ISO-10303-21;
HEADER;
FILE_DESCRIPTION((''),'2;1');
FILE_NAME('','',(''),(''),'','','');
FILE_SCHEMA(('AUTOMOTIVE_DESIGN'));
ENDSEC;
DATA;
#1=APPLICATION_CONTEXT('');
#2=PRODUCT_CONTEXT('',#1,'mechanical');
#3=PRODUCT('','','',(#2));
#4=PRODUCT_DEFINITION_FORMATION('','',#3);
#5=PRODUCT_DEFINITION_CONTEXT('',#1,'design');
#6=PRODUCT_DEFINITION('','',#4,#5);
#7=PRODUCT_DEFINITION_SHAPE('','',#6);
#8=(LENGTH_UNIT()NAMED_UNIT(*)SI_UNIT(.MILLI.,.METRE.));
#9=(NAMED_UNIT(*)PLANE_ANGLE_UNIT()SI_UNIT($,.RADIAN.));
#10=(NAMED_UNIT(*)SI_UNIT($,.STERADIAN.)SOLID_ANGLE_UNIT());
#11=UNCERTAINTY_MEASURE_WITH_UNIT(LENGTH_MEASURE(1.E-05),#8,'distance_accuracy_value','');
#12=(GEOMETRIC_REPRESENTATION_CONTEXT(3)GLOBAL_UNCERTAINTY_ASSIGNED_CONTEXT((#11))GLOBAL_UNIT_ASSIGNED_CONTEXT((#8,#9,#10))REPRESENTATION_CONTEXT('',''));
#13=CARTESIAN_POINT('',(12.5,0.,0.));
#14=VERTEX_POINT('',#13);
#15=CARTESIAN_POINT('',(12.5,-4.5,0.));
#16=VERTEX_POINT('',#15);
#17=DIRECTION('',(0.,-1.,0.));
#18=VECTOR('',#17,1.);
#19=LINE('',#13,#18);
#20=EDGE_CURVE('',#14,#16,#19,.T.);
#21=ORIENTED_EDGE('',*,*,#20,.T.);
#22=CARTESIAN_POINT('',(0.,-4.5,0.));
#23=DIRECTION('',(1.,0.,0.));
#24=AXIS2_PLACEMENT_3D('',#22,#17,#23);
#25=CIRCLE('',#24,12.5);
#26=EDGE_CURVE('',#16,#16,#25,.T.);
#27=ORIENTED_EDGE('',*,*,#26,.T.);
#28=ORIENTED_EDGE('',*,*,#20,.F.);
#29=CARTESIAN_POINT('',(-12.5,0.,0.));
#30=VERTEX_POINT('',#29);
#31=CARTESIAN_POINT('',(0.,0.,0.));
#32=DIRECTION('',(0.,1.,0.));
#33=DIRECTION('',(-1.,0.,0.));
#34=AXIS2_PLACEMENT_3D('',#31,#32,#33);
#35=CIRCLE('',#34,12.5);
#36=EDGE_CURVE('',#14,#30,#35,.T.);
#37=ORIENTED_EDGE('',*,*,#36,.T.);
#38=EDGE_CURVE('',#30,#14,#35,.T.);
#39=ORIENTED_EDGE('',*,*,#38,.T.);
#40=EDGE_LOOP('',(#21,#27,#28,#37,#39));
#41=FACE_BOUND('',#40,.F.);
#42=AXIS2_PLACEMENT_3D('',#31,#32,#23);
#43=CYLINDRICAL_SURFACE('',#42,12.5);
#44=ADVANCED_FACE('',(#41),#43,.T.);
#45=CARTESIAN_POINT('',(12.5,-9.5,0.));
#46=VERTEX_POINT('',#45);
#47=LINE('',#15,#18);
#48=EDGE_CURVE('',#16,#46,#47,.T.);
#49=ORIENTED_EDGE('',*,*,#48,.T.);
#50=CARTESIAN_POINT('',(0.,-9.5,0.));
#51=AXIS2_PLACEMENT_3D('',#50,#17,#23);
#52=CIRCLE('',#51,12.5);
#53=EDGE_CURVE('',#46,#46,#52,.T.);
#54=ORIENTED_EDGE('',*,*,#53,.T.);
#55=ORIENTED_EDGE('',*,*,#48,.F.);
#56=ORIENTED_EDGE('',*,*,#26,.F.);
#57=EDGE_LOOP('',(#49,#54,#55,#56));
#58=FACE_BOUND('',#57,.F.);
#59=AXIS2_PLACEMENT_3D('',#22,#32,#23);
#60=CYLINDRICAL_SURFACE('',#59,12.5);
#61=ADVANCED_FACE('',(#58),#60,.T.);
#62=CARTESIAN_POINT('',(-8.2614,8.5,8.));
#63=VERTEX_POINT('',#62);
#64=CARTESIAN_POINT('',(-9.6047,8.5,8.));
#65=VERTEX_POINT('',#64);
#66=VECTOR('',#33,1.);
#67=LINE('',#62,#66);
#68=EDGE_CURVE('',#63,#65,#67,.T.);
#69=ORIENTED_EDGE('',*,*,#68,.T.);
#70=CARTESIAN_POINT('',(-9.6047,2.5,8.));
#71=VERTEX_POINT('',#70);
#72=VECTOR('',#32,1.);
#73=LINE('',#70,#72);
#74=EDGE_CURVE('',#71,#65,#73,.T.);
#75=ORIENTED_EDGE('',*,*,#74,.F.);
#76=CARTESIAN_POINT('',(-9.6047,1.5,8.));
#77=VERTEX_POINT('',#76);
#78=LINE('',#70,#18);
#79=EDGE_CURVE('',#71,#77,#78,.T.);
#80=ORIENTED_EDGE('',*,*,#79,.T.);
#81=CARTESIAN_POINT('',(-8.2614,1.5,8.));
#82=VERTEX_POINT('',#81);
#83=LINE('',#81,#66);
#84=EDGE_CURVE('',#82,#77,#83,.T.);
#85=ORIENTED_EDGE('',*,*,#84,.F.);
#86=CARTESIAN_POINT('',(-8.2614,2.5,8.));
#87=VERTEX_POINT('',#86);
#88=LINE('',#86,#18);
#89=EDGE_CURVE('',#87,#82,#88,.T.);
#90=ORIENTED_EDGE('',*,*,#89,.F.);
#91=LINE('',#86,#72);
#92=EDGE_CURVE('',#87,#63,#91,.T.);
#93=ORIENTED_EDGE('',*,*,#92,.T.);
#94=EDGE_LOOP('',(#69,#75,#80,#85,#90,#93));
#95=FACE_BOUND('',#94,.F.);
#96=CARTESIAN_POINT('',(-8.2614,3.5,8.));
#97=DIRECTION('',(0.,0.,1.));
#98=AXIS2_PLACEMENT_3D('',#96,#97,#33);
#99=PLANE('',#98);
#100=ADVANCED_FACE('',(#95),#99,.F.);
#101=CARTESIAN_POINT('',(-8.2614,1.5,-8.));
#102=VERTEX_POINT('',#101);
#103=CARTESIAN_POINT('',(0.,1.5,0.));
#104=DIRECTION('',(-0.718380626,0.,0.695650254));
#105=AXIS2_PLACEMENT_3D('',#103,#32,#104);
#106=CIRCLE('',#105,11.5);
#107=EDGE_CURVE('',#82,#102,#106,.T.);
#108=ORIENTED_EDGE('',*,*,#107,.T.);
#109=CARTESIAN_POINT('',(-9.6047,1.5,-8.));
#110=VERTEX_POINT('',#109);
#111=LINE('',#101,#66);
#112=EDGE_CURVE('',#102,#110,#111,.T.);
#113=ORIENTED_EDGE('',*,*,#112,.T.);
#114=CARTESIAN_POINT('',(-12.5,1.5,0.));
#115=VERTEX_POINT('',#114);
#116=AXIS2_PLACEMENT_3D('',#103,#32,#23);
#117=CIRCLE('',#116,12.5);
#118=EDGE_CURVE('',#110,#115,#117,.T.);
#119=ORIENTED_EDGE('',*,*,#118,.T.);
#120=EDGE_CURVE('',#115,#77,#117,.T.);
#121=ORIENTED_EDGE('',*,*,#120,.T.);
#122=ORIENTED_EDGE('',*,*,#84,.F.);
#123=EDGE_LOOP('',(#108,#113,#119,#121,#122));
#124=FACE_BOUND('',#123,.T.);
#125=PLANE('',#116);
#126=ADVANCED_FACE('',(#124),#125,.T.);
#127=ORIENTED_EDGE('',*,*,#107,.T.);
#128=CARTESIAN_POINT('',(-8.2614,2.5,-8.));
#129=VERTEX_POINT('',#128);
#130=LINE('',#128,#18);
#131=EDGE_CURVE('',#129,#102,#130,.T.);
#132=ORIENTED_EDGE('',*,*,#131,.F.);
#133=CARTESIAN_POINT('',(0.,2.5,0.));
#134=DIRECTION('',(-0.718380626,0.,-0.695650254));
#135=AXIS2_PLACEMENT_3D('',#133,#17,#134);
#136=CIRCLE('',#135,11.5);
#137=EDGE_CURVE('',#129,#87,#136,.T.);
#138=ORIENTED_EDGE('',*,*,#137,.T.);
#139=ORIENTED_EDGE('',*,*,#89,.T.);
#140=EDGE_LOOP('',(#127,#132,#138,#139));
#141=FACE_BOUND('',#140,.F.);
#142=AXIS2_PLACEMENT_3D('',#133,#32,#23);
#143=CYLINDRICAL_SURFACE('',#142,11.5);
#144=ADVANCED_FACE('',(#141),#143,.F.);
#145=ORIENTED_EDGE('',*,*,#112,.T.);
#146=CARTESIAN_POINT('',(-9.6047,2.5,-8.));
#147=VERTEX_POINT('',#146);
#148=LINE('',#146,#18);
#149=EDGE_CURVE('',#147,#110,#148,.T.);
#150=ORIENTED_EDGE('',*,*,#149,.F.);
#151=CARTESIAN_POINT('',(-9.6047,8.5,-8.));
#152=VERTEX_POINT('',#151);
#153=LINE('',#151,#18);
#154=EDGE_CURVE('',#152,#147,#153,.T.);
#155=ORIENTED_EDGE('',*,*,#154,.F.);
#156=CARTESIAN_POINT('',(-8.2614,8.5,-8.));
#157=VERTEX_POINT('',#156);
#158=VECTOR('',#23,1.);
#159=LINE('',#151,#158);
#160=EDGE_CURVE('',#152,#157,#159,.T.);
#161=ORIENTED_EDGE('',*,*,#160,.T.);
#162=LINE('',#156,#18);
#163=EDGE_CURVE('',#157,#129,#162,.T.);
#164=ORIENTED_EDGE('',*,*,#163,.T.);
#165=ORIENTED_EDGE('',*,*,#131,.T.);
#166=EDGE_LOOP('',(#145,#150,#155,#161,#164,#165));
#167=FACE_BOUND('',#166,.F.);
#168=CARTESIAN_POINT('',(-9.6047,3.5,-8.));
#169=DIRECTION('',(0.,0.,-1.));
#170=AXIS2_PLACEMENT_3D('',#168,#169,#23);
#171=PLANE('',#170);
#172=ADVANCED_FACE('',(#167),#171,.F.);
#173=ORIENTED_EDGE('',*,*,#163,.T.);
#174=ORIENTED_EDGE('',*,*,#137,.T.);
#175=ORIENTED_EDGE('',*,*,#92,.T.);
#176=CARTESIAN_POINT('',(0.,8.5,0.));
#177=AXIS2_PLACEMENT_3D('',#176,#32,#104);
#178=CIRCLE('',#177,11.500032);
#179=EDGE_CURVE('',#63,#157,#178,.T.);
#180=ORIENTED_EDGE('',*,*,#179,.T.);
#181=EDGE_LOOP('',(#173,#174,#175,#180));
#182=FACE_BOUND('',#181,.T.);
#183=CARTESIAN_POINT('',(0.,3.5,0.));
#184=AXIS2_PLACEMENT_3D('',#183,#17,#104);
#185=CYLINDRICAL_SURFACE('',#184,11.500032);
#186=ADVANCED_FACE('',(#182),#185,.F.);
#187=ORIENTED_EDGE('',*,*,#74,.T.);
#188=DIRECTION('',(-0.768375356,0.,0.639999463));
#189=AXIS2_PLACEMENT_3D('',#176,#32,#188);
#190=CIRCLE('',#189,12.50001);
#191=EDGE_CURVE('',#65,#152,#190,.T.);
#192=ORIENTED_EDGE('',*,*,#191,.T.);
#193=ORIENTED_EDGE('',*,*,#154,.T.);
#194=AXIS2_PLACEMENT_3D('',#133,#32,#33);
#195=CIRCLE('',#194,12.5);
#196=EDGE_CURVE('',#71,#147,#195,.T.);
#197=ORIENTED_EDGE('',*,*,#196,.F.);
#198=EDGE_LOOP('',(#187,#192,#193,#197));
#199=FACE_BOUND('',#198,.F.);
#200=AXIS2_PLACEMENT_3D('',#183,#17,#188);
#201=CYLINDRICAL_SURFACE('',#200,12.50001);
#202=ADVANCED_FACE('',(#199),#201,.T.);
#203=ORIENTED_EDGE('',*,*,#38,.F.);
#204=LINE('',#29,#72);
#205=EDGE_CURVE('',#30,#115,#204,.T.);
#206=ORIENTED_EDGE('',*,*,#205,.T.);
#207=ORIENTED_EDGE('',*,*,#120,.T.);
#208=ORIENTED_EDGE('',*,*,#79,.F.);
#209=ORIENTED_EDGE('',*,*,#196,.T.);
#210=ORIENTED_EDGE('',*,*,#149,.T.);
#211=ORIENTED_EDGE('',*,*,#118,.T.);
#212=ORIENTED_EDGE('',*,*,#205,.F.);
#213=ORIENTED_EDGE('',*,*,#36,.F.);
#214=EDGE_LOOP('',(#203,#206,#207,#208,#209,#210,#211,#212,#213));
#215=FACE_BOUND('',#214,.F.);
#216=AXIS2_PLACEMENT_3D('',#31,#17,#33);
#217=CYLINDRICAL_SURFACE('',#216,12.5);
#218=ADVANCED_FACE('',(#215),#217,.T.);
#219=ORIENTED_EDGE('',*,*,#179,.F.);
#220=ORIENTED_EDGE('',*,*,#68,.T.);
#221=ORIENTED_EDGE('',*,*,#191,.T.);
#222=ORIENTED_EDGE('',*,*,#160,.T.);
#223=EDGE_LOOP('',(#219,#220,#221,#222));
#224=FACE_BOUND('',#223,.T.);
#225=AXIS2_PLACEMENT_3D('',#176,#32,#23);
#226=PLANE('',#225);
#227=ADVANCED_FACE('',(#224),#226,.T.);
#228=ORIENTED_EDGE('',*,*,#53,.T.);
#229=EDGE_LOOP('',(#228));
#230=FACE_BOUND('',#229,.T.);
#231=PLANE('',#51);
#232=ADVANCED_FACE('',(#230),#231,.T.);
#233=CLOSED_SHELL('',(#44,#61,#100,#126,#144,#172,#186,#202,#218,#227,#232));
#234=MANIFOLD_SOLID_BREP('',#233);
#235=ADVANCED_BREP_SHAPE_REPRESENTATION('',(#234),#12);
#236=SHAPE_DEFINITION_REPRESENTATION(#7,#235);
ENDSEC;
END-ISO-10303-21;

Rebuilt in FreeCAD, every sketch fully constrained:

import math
import FreeCAD as App
import Part
import Sketcher
from FreeCAD import Vector

doc = App.newDocument("Part")
params = doc.addObject("Spreadsheet::Sheet", "Params")
for row, (alias, value) in enumerate([
    ("sketch1_diameter", "25 mm"),
    ("pad1_length", "2.5 mm"),
    ("sketch2_diameter", "23 mm"),
    ("pocket1_length", "1 mm"),
    ("sketch3_radius", "11.5 mm"),
    ("sketch3_radius2", "12.5 mm"),
    ("pocket2_length", "1 mm"),
    ("sketch4_radius", "12.5 mm"),
    ("sketch4_radius2", "11.5 mm"),
    ("pad2_length", "1 mm"),
    ("sketch5_radius", "11.5 mm"),
    ("sketch5_radius2", "12.5 mm"),
    ("pad3_length", "5 mm"),
    ("sketch6_diameter", "25 mm"),
    ("pad4_length", "4.5 mm"),
    ("sketch7_diameter", "25 mm"),
    ("pad5_length", "5 mm"),
], start=1):
    params.set(f"A{row}", alias)
    params.set(f"B{row}", "=" + value)
    params.setAlias(f"B{row}", alias)

body = doc.addObject("PartDesign::Body", "Body")

sketch1 = doc.addObject("Sketcher::SketchObject", "Sketch")
body.addObject(sketch1)
sketch1.AttachmentSupport = (doc.XZ_Plane, [""])
sketch1.MapMode = "FlatFace"
sketch1.addGeometry(Part.Circle(Vector(0, 0, 0), Vector(0, 0, 1), 12.5), False)
sketch1.addConstraint([
    Sketcher.Constraint("Coincident", 0, 3, -1, 1),
    Sketcher.Constraint("Diameter", 0, 25.0),
])
sketch1.setExpression("Constraints[1]", "Params.sketch1_diameter")
pad1 = doc.addObject("PartDesign::Pad", "Pad")
body.addObject(pad1)
pad1.Profile = sketch1
pad1.setExpression("Length", "Params.pad1_length")
pad1.Reversed = True

sketch2 = doc.addObject("Sketcher::SketchObject", "Sketch001")
body.addObject(sketch2)
sketch2.AttachmentSupport = (doc.XZ_Plane, [""])
sketch2.MapMode = "FlatFace"
sketch2.AttachmentOffset = App.Placement(Vector(0, 0, -2.5), App.Rotation())
sketch2.addGeometry(Part.Circle(Vector(0, 0, 0), Vector(0, 0, 1), 11.5), False)
sketch2.addConstraint([
    Sketcher.Constraint("Coincident", 0, 3, -1, 1),
    Sketcher.Constraint("Diameter", 0, 23.0),
])
sketch2.setExpression("Constraints[1]", "Params.sketch2_diameter")
pocket1 = doc.addObject("PartDesign::Pocket", "Pocket")
body.addObject(pocket1)
pocket1.Profile = sketch2
pocket1.setExpression("Length", "Params.pocket1_length")
pocket1.Reversed = True

sketch3 = doc.addObject("Sketcher::SketchObject", "Sketch002")
body.addObject(sketch3)
sketch3.AttachmentSupport = (doc.XZ_Plane, [""])
sketch3.MapMode = "FlatFace"
sketch3.AttachmentOffset = App.Placement(Vector(0, 0, -2.5), App.Rotation())
sketch3.addGeometry([
    Part.ArcOfCircle(Part.Circle(Vector(0, 0, 0), Vector(0, 0, 1), 11.5), math.radians(135.920943), math.radians(224.079057)),
    Part.LineSegment(Vector(-8.2614, -8, 0), Vector(-9.6047, -8, 0)),
    Part.ArcOfCircle(Part.Circle(Vector(0, 0, 0), Vector(0, 0, 1), 12.5), math.radians(140.208221), math.radians(219.791779)),
    Part.LineSegment(Vector(-9.6047, 8, 0), Vector(-8.2614, 8, 0)),
], False)
sketch3.addConstraint([
    Sketcher.Constraint("Coincident", 0, 2, 1, 1),
    Sketcher.Constraint("Coincident", 1, 2, 2, 2),
    Sketcher.Constraint("Coincident", 2, 1, 3, 1),
    Sketcher.Constraint("Coincident", 3, 2, 0, 1),
    Sketcher.Constraint("Horizontal", 1),
    Sketcher.Constraint("Horizontal", 3),
    Sketcher.Constraint("Coincident", 0, 3, -1, 1),
    Sketcher.Constraint("Coincident", 2, 3, -1, 1),
    Sketcher.Constraint("Vertical", 1, 2, 2, 1),
    Sketcher.Constraint("Radius", 0, 11.5),
    Sketcher.Constraint("Radius", 2, 12.5),
    Sketcher.Constraint("DistanceY", 0, 2, -1, 1, 8.0),
])
sketch3.setExpression("Constraints[9]", "Params.sketch3_radius")
sketch3.setExpression("Constraints[10]", "Params.sketch3_radius2")
pocket2 = doc.addObject("PartDesign::Pocket", "Pocket001")
body.addObject(pocket2)
pocket2.Profile = sketch3
pocket2.setExpression("Length", "Params.pocket2_length")
pocket2.Reversed = True

sketch4 = doc.addObject("Sketcher::SketchObject", "Sketch003")
body.addObject(sketch4)
sketch4.AttachmentSupport = (doc.XZ_Plane, [""])
sketch4.MapMode = "FlatFace"
sketch4.AttachmentOffset = App.Placement(Vector(0, 0, -2.5), App.Rotation())
sketch4.addGeometry([
    Part.LineSegment(Vector(-8.2614, 8, 0), Vector(-9.6047, 8, 0)),
    Part.ArcOfCircle(Part.Circle(Vector(0, 0, 0), Vector(0, 0, 1), 12.50001), math.radians(-140.208221), math.radians(140.208221)),
    Part.LineSegment(Vector(-9.6047, -8, 0), Vector(-8.2614, -8, 0)),
    Part.ArcOfCircle(Part.Circle(Vector(0, 0, 0), Vector(0, 0, 1), 11.500032), math.radians(-135.920943), math.radians(135.920943)),
], False)
sketch4.addConstraint([
    Sketcher.Constraint("Coincident", 0, 2, 1, 2),
    Sketcher.Constraint("Coincident", 1, 1, 2, 1),
    Sketcher.Constraint("Coincident", 2, 2, 3, 1),
    Sketcher.Constraint("Coincident", 3, 2, 0, 1),
    Sketcher.Constraint("Horizontal", 0),
    Sketcher.Constraint("Horizontal", 2),
    Sketcher.Constraint("Coincident", 1, 3, -1, 1),
    Sketcher.Constraint("Coincident", 3, 3, -1, 1),
    Sketcher.Constraint("Vertical", 0, 2, 1, 1),
    Sketcher.Constraint("Radius", 1, 12.5),
    Sketcher.Constraint("Radius", 3, 11.5),
    Sketcher.Constraint("DistanceY", -1, 1, 0, 2, 8.0),
])
sketch4.setExpression("Constraints[9]", "Params.sketch4_radius")
sketch4.setExpression("Constraints[10]", "Params.sketch4_radius2")
pad2 = doc.addObject("PartDesign::Pad", "Pad001")
body.addObject(pad2)
pad2.Profile = sketch4
pad2.setExpression("Length", "Params.pad2_length")
pad2.Reversed = True

sketch5 = doc.addObject("Sketcher::SketchObject", "Sketch004")
body.addObject(sketch5)
sketch5.AttachmentSupport = (doc.XZ_Plane, [""])
sketch5.MapMode = "FlatFace"
sketch5.AttachmentOffset = App.Placement(Vector(0, 0, -3.5), App.Rotation())
sketch5.addGeometry([
    Part.ArcOfCircle(Part.Circle(Vector(0, 0, 0), Vector(0, 0, 1), 11.500032), math.radians(-135.920943), math.radians(135.920943)),
    Part.LineSegment(Vector(-8.2614, 8, 0), Vector(-9.6047, 8, 0)),
    Part.ArcOfCircle(Part.Circle(Vector(0, 0, 0), Vector(0, 0, 1), 12.50001), math.radians(-140.208221), math.radians(140.208221)),
    Part.LineSegment(Vector(-9.6047, -8, 0), Vector(-8.2614, -8, 0)),
], False)
sketch5.addConstraint([
    Sketcher.Constraint("Coincident", 0, 2, 1, 1),
    Sketcher.Constraint("Coincident", 1, 2, 2, 2),
    Sketcher.Constraint("Coincident", 2, 1, 3, 1),
    Sketcher.Constraint("Coincident", 3, 2, 0, 1),
    Sketcher.Constraint("Horizontal", 1),
    Sketcher.Constraint("Horizontal", 3),
    Sketcher.Constraint("Coincident", 0, 3, -1, 1),
    Sketcher.Constraint("Coincident", 2, 3, -1, 1),
    Sketcher.Constraint("Vertical", 1, 2, 2, 1),
    Sketcher.Constraint("Radius", 0, 11.5),
    Sketcher.Constraint("Radius", 2, 12.5),
    Sketcher.Constraint("DistanceY", -1, 1, 0, 2, 8.0),
])
sketch5.setExpression("Constraints[9]", "Params.sketch5_radius")
sketch5.setExpression("Constraints[10]", "Params.sketch5_radius2")
pad3 = doc.addObject("PartDesign::Pad", "Pad002")
body.addObject(pad3)
pad3.Profile = sketch5
pad3.setExpression("Length", "Params.pad3_length")
pad3.Reversed = True

sketch6 = doc.addObject("Sketcher::SketchObject", "Sketch005")
body.addObject(sketch6)
sketch6.AttachmentSupport = (doc.XZ_Plane, [""])
sketch6.MapMode = "FlatFace"
sketch6.addGeometry(Part.Circle(Vector(0, 0, 0), Vector(0, 0, 1), 12.5), False)
sketch6.addConstraint([
    Sketcher.Constraint("Coincident", 0, 3, -1, 1),
    Sketcher.Constraint("Diameter", 0, 25.0),
])
sketch6.setExpression("Constraints[1]", "Params.sketch6_diameter")
pad4 = doc.addObject("PartDesign::Pad", "Pad003")
body.addObject(pad4)
pad4.Profile = sketch6
pad4.setExpression("Length", "Params.pad4_length")

sketch7 = doc.addObject("Sketcher::SketchObject", "Sketch006")
body.addObject(sketch7)
sketch7.AttachmentSupport = (doc.XZ_Plane, [""])
sketch7.MapMode = "FlatFace"
sketch7.AttachmentOffset = App.Placement(Vector(0, 0, 4.5), App.Rotation())
sketch7.addGeometry(Part.Circle(Vector(0, 0, 0), Vector(0, 0, 1), 12.5), False)
sketch7.addConstraint([
    Sketcher.Constraint("Coincident", 0, 3, -1, 1),
    Sketcher.Constraint("Diameter", 0, 25.0),
])
sketch7.setExpression("Constraints[1]", "Params.sketch7_diameter")
pad5 = doc.addObject("PartDesign::Pad", "Pad004")
body.addObject(pad5)
pad5.Profile = sketch7
pad5.setExpression("Length", "Params.pad5_length")

doc.recompute()
